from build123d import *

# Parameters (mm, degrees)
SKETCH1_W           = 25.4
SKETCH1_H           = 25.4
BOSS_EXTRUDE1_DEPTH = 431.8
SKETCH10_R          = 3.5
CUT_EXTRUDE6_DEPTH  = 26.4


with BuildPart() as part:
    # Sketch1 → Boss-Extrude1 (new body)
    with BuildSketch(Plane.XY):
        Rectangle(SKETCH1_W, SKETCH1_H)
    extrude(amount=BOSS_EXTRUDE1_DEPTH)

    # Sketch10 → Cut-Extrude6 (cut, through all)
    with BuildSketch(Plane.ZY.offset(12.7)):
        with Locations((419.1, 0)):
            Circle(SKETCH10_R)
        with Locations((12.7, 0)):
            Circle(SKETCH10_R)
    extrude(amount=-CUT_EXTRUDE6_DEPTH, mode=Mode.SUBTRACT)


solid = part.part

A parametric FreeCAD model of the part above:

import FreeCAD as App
import Part
import Sketcher

V = App.Vector

doc = App.newDocument("Part")
body = doc.addObject("PartDesign::Body", "Body")

sketch1 = body.newObject("Sketcher::SketchObject", "Sketch")
sketch1.AttachmentSupport = (doc.getObject("XY_Plane"), [""])
sketch1.MapMode = "FlatFace"
sketch1.addGeometry([
    Part.LineSegment(V(-13, 13, 0), V(-13, -13, 0)),
    Part.LineSegment(V(-13, -13, 0), V(13, -13, 0)),
    Part.LineSegment(V(13, -13, 0), V(13, 13, 0)),
    Part.LineSegment(V(13, 13, 0), V(-13, 13, 0)),
], False)
sketch1.addConstraint([
    Sketcher.Constraint("Coincident", 0, 2, 1, 1),
    Sketcher.Constraint("Coincident", 1, 2, 2, 1),
    Sketcher.Constraint("Coincident", 2, 2, 3, 1),
    Sketcher.Constraint("Coincident", 3, 2, 0, 1),
    Sketcher.Constraint("Vertical", 0),
    Sketcher.Constraint("Horizontal", 1),
    Sketcher.Constraint("Vertical", 2),
    Sketcher.Constraint("Horizontal", 3),
    Sketcher.Constraint("Symmetric", 0, 2, 2, 2, -1, 1),
    Sketcher.Constraint("Equal", 3, 0),
    Sketcher.Constraint("DistanceX", 1, 1, 1, 2, 25.4),
])
pad1 = body.newObject("PartDesign::Pad", "Pad")
pad1.Profile = sketch1
pad1.Length = 431.8

sketch2 = body.newObject("Sketcher::SketchObject", "Sketch001")
sketch2.AttachmentSupport = (doc.getObject("YZ_Plane"), [""])
sketch2.MapMode = "FlatFace"
sketch2.AttachmentOffset = App.Placement(V(0, 0, -12.7), App.Rotation())
sketch2.addGeometry([
    Part.Circle(V(0, 419.1, 0), V(0, 0, 1), 3.5),
    Part.Circle(V(0, 12.7, 0), V(0, 0, 1), 3.5),
], False)
sketch2.addConstraint([
    Sketcher.Constraint("Equal", 0, 1),
    Sketcher.Constraint("PointOnObject", 0, 3, -2),
    Sketcher.Constraint("PointOnObject", 1, 3, -2),
    Sketcher.Constraint("Diameter", 0, 7.0),
    Sketcher.Constraint("DistanceY", -1, 1, 0, 3, 419.1),
    Sketcher.Constraint("DistanceY", -1, 1, 1, 3, 12.7),
])
pocket1 = body.newObject("PartDesign::Pocket", "Pocket")
pocket1.Profile = sketch2
pocket1.Type = "ThroughAll"
pocket1.Reversed = True

doc.recompute()
